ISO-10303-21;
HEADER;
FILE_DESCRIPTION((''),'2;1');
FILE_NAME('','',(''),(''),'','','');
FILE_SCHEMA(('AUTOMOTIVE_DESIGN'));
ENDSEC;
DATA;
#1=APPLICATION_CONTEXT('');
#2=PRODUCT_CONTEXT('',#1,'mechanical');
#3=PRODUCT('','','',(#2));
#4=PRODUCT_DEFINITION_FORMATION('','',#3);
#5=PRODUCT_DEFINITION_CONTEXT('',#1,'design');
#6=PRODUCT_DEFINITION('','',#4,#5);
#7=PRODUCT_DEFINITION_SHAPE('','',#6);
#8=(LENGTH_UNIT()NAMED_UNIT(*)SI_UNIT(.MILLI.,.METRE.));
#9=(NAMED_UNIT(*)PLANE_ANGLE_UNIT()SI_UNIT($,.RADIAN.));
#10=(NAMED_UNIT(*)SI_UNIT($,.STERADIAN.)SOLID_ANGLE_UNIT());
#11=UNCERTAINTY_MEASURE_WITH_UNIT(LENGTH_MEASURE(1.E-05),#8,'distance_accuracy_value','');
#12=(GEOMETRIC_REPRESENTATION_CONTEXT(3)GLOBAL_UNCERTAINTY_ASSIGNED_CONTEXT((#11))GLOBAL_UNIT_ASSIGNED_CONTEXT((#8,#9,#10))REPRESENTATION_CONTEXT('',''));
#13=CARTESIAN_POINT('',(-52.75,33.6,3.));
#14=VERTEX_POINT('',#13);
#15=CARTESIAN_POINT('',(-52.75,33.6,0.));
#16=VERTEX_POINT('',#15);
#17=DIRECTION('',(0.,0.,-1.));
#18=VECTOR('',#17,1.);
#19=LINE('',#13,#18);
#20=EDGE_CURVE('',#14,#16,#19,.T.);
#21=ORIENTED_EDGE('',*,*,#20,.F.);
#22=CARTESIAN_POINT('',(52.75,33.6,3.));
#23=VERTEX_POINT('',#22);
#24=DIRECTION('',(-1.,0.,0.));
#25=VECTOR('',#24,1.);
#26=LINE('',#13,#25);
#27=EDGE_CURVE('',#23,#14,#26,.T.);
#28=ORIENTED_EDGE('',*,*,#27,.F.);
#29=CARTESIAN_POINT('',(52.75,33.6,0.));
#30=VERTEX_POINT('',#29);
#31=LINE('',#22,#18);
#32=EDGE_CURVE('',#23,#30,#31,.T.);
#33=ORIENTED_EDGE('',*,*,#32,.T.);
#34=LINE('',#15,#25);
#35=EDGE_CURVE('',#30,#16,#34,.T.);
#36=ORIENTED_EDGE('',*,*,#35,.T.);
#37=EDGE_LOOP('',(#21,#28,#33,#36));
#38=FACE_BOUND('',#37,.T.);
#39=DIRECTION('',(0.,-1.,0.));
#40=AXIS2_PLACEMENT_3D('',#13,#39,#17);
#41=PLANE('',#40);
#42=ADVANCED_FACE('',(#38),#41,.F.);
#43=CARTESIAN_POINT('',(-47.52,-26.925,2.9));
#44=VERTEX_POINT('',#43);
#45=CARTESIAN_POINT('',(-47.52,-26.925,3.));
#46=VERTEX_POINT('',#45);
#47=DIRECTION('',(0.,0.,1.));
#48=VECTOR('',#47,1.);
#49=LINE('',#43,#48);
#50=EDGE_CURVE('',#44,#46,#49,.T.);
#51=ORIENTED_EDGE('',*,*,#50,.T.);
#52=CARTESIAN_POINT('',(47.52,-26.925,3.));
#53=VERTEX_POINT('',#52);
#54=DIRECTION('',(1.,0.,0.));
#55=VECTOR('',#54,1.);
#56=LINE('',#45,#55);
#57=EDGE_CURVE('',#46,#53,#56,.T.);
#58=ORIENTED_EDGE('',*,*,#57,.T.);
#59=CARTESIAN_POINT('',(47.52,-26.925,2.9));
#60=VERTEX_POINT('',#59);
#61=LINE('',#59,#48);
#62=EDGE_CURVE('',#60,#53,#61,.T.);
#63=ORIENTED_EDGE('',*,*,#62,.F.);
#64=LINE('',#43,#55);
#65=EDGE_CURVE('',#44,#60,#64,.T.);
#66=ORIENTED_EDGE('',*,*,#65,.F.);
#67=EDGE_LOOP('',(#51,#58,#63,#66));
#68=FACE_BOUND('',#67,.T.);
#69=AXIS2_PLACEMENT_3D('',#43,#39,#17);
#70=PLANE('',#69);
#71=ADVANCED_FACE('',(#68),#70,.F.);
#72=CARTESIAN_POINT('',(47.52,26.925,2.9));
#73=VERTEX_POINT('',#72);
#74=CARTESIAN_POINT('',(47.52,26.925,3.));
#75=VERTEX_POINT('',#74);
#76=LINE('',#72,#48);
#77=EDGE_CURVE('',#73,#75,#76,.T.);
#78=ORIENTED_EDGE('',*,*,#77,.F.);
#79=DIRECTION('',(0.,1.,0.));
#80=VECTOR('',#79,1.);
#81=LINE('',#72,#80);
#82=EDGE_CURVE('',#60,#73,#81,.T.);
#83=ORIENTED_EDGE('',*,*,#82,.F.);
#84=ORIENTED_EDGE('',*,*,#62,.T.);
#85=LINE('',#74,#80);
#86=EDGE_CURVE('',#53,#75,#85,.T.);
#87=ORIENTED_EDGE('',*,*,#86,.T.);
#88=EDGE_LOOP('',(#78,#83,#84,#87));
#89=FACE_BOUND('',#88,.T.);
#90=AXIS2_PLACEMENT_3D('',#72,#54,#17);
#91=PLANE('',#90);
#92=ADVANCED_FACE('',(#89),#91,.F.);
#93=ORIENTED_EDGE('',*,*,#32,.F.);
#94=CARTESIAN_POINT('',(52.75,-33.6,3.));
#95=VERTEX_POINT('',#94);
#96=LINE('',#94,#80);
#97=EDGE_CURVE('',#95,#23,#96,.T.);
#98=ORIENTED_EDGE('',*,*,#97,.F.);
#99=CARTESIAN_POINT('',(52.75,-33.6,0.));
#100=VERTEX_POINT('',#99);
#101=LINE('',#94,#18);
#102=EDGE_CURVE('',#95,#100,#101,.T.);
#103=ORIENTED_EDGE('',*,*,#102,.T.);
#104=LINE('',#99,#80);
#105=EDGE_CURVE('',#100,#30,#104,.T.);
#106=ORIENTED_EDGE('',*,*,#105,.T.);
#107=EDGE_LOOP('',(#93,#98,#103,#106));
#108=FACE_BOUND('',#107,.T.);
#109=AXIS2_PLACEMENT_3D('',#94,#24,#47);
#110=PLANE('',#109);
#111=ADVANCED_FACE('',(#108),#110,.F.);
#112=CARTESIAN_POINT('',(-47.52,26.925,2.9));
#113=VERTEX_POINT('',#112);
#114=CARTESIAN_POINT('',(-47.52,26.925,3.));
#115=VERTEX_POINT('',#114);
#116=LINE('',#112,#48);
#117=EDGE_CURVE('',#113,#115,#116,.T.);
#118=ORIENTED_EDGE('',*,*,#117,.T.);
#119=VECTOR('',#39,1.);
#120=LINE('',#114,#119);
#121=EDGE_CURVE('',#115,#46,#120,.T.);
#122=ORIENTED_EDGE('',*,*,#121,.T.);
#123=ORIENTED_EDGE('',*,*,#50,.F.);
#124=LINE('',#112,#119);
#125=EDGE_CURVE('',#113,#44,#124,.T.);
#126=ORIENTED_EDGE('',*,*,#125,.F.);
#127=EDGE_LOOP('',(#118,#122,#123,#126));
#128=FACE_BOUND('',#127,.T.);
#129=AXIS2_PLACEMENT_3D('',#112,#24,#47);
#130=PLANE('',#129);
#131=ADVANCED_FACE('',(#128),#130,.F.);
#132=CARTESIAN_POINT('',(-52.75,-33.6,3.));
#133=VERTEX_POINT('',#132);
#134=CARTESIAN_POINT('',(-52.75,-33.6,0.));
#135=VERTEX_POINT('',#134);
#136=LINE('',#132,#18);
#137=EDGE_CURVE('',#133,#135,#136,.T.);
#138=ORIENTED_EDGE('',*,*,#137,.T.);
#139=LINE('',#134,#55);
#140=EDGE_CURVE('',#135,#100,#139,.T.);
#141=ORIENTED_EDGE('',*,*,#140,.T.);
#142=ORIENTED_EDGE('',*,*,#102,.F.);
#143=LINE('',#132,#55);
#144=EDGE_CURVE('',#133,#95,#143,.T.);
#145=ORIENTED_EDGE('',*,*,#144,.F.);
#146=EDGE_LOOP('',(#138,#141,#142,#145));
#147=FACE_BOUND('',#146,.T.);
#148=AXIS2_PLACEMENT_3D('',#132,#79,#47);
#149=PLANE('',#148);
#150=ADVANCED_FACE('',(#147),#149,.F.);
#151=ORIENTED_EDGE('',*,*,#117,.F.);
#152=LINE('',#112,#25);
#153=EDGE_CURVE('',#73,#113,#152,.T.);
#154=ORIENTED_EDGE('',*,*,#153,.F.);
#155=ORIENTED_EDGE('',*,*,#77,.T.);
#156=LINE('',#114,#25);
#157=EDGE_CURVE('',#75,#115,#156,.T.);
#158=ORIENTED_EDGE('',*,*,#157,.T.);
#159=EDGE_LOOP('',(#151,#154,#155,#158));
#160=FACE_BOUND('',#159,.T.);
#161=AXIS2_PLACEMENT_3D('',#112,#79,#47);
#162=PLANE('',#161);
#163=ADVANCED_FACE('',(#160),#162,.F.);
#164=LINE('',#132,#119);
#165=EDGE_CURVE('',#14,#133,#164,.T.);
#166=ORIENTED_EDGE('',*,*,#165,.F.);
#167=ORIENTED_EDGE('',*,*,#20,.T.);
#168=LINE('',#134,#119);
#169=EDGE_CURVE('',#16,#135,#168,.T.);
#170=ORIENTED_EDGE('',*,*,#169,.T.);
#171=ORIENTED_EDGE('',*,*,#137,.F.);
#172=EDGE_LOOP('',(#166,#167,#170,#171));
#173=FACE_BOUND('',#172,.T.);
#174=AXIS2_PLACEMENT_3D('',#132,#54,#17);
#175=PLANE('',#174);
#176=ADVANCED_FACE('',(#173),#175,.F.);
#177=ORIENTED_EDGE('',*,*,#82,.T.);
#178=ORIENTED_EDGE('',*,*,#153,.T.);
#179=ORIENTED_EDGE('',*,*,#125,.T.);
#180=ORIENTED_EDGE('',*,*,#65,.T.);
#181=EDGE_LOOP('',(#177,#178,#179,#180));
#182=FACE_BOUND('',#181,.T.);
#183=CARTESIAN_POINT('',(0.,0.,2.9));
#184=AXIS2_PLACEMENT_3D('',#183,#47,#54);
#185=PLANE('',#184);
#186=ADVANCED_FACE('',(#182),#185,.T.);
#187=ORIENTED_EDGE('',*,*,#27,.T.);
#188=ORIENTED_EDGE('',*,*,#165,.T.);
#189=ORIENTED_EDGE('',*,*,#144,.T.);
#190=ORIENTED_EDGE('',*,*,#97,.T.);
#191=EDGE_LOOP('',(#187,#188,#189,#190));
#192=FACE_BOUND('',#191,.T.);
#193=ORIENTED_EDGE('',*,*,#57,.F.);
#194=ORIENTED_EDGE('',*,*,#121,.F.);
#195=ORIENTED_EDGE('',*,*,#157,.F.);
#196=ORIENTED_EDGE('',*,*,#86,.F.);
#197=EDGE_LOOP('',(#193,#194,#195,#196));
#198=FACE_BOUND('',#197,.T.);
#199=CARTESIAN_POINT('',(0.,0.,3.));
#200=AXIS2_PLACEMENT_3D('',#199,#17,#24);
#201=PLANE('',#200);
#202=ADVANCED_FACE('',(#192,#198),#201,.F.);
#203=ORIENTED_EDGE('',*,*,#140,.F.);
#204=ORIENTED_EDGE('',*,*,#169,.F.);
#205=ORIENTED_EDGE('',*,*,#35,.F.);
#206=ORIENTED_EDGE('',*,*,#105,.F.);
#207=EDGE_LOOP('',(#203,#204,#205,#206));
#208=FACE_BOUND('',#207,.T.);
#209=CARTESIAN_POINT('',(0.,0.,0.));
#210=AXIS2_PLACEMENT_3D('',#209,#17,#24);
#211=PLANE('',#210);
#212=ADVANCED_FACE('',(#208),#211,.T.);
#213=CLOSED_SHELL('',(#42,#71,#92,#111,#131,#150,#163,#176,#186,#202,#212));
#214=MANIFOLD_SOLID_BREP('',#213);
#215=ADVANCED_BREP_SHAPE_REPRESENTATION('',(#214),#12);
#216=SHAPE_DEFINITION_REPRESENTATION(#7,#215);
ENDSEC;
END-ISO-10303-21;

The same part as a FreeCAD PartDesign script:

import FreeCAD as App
import Part
import Sketcher
from FreeCAD import Vector


def add_polygon(sketch, points):
    """Adds a closed chain of lines whose ends are joined by coincident constraints."""
    first, n = sketch.GeometryCount, len(points)
    for a, b in zip(points, points[1:] + points[:1]):
        sketch.addGeometry(Part.LineSegment(App.Vector(*a, 0), App.Vector(*b, 0)), False)
    for i in range(n):
        sketch.addConstraint(Sketcher.Constraint("Coincident", first + i, 2, first + (i + 1) % n, 1))

doc = App.newDocument("Part")
body = doc.addObject("PartDesign::Body", "Body")

sketch1 = doc.addObject("Sketcher::SketchObject", "Sketch")
body.addObject(sketch1)
sketch1.AttachmentSupport = (doc.XY_Plane, [""])
sketch1.MapMode = "FlatFace"
add_polygon(sketch1, [(-52.75, 33.6), (-52.75, -33.6), (52.75, -33.6), (52.75, 33.6)])
sketch1.addConstraint(Sketcher.Constraint("Vertical", 0))
sketch1.addConstraint(Sketcher.Constraint("Horizontal", 1))
sketch1.addConstraint(Sketcher.Constraint("Vertical", 2))
sketch1.addConstraint(Sketcher.Constraint("Horizontal", 3))
sketch1.addConstraint(Sketcher.Constraint("Symmetric", 0, 2, 2, 2, -1, 1))
sketch1.addConstraint(Sketcher.Constraint("DistanceX", 1, 1, 1, 2, 105.5))
sketch1.addConstraint(Sketcher.Constraint("DistanceY", 0, 2, 0, 1, 67.2))
pad1 = doc.addObject("PartDesign::Pad", "Pad")
body.addObject(pad1)
pad1.Profile = sketch1
pad1.Length = 3

sketch2 = doc.addObject("Sketcher::SketchObject", "Sketch001")
body.addObject(sketch2)
sketch2.AttachmentSupport = (doc.XY_Plane, [""])
sketch2.MapMode = "FlatFace"
sketch2.AttachmentOffset = App.Placement(Vector(0, 0, 3), App.Rotation())
add_polygon(sketch2, [(-47.52, 26.925), (-47.52, -26.925), (47.52, -26.925), (47.52, 26.925)])
sketch2.addConstraint(Sketcher.Constraint("Vertical", 0))
sketch2.addConstraint(Sketcher.Constraint("Horizontal", 1))
sketch2.addConstraint(Sketcher.Constraint("Vertical", 2))
sketch2.addConstraint(Sketcher.Constraint("Horizontal", 3))
sketch2.addConstraint(Sketcher.Constraint("Symmetric", 0, 2, 2, 2, -1, 1))
sketch2.addConstraint(Sketcher.Constraint("DistanceX", 1, 1, 1, 2, 95.04))
sketch2.addConstraint(Sketcher.Constraint("DistanceY", 0, 2, 0, 1, 53.85))
pocket1 = doc.addObject("PartDesign::Pocket", "Pocket")
body.addObject(pocket1)
pocket1.Profile = sketch2
pocket1.Length = 0.1

doc.recompute()
